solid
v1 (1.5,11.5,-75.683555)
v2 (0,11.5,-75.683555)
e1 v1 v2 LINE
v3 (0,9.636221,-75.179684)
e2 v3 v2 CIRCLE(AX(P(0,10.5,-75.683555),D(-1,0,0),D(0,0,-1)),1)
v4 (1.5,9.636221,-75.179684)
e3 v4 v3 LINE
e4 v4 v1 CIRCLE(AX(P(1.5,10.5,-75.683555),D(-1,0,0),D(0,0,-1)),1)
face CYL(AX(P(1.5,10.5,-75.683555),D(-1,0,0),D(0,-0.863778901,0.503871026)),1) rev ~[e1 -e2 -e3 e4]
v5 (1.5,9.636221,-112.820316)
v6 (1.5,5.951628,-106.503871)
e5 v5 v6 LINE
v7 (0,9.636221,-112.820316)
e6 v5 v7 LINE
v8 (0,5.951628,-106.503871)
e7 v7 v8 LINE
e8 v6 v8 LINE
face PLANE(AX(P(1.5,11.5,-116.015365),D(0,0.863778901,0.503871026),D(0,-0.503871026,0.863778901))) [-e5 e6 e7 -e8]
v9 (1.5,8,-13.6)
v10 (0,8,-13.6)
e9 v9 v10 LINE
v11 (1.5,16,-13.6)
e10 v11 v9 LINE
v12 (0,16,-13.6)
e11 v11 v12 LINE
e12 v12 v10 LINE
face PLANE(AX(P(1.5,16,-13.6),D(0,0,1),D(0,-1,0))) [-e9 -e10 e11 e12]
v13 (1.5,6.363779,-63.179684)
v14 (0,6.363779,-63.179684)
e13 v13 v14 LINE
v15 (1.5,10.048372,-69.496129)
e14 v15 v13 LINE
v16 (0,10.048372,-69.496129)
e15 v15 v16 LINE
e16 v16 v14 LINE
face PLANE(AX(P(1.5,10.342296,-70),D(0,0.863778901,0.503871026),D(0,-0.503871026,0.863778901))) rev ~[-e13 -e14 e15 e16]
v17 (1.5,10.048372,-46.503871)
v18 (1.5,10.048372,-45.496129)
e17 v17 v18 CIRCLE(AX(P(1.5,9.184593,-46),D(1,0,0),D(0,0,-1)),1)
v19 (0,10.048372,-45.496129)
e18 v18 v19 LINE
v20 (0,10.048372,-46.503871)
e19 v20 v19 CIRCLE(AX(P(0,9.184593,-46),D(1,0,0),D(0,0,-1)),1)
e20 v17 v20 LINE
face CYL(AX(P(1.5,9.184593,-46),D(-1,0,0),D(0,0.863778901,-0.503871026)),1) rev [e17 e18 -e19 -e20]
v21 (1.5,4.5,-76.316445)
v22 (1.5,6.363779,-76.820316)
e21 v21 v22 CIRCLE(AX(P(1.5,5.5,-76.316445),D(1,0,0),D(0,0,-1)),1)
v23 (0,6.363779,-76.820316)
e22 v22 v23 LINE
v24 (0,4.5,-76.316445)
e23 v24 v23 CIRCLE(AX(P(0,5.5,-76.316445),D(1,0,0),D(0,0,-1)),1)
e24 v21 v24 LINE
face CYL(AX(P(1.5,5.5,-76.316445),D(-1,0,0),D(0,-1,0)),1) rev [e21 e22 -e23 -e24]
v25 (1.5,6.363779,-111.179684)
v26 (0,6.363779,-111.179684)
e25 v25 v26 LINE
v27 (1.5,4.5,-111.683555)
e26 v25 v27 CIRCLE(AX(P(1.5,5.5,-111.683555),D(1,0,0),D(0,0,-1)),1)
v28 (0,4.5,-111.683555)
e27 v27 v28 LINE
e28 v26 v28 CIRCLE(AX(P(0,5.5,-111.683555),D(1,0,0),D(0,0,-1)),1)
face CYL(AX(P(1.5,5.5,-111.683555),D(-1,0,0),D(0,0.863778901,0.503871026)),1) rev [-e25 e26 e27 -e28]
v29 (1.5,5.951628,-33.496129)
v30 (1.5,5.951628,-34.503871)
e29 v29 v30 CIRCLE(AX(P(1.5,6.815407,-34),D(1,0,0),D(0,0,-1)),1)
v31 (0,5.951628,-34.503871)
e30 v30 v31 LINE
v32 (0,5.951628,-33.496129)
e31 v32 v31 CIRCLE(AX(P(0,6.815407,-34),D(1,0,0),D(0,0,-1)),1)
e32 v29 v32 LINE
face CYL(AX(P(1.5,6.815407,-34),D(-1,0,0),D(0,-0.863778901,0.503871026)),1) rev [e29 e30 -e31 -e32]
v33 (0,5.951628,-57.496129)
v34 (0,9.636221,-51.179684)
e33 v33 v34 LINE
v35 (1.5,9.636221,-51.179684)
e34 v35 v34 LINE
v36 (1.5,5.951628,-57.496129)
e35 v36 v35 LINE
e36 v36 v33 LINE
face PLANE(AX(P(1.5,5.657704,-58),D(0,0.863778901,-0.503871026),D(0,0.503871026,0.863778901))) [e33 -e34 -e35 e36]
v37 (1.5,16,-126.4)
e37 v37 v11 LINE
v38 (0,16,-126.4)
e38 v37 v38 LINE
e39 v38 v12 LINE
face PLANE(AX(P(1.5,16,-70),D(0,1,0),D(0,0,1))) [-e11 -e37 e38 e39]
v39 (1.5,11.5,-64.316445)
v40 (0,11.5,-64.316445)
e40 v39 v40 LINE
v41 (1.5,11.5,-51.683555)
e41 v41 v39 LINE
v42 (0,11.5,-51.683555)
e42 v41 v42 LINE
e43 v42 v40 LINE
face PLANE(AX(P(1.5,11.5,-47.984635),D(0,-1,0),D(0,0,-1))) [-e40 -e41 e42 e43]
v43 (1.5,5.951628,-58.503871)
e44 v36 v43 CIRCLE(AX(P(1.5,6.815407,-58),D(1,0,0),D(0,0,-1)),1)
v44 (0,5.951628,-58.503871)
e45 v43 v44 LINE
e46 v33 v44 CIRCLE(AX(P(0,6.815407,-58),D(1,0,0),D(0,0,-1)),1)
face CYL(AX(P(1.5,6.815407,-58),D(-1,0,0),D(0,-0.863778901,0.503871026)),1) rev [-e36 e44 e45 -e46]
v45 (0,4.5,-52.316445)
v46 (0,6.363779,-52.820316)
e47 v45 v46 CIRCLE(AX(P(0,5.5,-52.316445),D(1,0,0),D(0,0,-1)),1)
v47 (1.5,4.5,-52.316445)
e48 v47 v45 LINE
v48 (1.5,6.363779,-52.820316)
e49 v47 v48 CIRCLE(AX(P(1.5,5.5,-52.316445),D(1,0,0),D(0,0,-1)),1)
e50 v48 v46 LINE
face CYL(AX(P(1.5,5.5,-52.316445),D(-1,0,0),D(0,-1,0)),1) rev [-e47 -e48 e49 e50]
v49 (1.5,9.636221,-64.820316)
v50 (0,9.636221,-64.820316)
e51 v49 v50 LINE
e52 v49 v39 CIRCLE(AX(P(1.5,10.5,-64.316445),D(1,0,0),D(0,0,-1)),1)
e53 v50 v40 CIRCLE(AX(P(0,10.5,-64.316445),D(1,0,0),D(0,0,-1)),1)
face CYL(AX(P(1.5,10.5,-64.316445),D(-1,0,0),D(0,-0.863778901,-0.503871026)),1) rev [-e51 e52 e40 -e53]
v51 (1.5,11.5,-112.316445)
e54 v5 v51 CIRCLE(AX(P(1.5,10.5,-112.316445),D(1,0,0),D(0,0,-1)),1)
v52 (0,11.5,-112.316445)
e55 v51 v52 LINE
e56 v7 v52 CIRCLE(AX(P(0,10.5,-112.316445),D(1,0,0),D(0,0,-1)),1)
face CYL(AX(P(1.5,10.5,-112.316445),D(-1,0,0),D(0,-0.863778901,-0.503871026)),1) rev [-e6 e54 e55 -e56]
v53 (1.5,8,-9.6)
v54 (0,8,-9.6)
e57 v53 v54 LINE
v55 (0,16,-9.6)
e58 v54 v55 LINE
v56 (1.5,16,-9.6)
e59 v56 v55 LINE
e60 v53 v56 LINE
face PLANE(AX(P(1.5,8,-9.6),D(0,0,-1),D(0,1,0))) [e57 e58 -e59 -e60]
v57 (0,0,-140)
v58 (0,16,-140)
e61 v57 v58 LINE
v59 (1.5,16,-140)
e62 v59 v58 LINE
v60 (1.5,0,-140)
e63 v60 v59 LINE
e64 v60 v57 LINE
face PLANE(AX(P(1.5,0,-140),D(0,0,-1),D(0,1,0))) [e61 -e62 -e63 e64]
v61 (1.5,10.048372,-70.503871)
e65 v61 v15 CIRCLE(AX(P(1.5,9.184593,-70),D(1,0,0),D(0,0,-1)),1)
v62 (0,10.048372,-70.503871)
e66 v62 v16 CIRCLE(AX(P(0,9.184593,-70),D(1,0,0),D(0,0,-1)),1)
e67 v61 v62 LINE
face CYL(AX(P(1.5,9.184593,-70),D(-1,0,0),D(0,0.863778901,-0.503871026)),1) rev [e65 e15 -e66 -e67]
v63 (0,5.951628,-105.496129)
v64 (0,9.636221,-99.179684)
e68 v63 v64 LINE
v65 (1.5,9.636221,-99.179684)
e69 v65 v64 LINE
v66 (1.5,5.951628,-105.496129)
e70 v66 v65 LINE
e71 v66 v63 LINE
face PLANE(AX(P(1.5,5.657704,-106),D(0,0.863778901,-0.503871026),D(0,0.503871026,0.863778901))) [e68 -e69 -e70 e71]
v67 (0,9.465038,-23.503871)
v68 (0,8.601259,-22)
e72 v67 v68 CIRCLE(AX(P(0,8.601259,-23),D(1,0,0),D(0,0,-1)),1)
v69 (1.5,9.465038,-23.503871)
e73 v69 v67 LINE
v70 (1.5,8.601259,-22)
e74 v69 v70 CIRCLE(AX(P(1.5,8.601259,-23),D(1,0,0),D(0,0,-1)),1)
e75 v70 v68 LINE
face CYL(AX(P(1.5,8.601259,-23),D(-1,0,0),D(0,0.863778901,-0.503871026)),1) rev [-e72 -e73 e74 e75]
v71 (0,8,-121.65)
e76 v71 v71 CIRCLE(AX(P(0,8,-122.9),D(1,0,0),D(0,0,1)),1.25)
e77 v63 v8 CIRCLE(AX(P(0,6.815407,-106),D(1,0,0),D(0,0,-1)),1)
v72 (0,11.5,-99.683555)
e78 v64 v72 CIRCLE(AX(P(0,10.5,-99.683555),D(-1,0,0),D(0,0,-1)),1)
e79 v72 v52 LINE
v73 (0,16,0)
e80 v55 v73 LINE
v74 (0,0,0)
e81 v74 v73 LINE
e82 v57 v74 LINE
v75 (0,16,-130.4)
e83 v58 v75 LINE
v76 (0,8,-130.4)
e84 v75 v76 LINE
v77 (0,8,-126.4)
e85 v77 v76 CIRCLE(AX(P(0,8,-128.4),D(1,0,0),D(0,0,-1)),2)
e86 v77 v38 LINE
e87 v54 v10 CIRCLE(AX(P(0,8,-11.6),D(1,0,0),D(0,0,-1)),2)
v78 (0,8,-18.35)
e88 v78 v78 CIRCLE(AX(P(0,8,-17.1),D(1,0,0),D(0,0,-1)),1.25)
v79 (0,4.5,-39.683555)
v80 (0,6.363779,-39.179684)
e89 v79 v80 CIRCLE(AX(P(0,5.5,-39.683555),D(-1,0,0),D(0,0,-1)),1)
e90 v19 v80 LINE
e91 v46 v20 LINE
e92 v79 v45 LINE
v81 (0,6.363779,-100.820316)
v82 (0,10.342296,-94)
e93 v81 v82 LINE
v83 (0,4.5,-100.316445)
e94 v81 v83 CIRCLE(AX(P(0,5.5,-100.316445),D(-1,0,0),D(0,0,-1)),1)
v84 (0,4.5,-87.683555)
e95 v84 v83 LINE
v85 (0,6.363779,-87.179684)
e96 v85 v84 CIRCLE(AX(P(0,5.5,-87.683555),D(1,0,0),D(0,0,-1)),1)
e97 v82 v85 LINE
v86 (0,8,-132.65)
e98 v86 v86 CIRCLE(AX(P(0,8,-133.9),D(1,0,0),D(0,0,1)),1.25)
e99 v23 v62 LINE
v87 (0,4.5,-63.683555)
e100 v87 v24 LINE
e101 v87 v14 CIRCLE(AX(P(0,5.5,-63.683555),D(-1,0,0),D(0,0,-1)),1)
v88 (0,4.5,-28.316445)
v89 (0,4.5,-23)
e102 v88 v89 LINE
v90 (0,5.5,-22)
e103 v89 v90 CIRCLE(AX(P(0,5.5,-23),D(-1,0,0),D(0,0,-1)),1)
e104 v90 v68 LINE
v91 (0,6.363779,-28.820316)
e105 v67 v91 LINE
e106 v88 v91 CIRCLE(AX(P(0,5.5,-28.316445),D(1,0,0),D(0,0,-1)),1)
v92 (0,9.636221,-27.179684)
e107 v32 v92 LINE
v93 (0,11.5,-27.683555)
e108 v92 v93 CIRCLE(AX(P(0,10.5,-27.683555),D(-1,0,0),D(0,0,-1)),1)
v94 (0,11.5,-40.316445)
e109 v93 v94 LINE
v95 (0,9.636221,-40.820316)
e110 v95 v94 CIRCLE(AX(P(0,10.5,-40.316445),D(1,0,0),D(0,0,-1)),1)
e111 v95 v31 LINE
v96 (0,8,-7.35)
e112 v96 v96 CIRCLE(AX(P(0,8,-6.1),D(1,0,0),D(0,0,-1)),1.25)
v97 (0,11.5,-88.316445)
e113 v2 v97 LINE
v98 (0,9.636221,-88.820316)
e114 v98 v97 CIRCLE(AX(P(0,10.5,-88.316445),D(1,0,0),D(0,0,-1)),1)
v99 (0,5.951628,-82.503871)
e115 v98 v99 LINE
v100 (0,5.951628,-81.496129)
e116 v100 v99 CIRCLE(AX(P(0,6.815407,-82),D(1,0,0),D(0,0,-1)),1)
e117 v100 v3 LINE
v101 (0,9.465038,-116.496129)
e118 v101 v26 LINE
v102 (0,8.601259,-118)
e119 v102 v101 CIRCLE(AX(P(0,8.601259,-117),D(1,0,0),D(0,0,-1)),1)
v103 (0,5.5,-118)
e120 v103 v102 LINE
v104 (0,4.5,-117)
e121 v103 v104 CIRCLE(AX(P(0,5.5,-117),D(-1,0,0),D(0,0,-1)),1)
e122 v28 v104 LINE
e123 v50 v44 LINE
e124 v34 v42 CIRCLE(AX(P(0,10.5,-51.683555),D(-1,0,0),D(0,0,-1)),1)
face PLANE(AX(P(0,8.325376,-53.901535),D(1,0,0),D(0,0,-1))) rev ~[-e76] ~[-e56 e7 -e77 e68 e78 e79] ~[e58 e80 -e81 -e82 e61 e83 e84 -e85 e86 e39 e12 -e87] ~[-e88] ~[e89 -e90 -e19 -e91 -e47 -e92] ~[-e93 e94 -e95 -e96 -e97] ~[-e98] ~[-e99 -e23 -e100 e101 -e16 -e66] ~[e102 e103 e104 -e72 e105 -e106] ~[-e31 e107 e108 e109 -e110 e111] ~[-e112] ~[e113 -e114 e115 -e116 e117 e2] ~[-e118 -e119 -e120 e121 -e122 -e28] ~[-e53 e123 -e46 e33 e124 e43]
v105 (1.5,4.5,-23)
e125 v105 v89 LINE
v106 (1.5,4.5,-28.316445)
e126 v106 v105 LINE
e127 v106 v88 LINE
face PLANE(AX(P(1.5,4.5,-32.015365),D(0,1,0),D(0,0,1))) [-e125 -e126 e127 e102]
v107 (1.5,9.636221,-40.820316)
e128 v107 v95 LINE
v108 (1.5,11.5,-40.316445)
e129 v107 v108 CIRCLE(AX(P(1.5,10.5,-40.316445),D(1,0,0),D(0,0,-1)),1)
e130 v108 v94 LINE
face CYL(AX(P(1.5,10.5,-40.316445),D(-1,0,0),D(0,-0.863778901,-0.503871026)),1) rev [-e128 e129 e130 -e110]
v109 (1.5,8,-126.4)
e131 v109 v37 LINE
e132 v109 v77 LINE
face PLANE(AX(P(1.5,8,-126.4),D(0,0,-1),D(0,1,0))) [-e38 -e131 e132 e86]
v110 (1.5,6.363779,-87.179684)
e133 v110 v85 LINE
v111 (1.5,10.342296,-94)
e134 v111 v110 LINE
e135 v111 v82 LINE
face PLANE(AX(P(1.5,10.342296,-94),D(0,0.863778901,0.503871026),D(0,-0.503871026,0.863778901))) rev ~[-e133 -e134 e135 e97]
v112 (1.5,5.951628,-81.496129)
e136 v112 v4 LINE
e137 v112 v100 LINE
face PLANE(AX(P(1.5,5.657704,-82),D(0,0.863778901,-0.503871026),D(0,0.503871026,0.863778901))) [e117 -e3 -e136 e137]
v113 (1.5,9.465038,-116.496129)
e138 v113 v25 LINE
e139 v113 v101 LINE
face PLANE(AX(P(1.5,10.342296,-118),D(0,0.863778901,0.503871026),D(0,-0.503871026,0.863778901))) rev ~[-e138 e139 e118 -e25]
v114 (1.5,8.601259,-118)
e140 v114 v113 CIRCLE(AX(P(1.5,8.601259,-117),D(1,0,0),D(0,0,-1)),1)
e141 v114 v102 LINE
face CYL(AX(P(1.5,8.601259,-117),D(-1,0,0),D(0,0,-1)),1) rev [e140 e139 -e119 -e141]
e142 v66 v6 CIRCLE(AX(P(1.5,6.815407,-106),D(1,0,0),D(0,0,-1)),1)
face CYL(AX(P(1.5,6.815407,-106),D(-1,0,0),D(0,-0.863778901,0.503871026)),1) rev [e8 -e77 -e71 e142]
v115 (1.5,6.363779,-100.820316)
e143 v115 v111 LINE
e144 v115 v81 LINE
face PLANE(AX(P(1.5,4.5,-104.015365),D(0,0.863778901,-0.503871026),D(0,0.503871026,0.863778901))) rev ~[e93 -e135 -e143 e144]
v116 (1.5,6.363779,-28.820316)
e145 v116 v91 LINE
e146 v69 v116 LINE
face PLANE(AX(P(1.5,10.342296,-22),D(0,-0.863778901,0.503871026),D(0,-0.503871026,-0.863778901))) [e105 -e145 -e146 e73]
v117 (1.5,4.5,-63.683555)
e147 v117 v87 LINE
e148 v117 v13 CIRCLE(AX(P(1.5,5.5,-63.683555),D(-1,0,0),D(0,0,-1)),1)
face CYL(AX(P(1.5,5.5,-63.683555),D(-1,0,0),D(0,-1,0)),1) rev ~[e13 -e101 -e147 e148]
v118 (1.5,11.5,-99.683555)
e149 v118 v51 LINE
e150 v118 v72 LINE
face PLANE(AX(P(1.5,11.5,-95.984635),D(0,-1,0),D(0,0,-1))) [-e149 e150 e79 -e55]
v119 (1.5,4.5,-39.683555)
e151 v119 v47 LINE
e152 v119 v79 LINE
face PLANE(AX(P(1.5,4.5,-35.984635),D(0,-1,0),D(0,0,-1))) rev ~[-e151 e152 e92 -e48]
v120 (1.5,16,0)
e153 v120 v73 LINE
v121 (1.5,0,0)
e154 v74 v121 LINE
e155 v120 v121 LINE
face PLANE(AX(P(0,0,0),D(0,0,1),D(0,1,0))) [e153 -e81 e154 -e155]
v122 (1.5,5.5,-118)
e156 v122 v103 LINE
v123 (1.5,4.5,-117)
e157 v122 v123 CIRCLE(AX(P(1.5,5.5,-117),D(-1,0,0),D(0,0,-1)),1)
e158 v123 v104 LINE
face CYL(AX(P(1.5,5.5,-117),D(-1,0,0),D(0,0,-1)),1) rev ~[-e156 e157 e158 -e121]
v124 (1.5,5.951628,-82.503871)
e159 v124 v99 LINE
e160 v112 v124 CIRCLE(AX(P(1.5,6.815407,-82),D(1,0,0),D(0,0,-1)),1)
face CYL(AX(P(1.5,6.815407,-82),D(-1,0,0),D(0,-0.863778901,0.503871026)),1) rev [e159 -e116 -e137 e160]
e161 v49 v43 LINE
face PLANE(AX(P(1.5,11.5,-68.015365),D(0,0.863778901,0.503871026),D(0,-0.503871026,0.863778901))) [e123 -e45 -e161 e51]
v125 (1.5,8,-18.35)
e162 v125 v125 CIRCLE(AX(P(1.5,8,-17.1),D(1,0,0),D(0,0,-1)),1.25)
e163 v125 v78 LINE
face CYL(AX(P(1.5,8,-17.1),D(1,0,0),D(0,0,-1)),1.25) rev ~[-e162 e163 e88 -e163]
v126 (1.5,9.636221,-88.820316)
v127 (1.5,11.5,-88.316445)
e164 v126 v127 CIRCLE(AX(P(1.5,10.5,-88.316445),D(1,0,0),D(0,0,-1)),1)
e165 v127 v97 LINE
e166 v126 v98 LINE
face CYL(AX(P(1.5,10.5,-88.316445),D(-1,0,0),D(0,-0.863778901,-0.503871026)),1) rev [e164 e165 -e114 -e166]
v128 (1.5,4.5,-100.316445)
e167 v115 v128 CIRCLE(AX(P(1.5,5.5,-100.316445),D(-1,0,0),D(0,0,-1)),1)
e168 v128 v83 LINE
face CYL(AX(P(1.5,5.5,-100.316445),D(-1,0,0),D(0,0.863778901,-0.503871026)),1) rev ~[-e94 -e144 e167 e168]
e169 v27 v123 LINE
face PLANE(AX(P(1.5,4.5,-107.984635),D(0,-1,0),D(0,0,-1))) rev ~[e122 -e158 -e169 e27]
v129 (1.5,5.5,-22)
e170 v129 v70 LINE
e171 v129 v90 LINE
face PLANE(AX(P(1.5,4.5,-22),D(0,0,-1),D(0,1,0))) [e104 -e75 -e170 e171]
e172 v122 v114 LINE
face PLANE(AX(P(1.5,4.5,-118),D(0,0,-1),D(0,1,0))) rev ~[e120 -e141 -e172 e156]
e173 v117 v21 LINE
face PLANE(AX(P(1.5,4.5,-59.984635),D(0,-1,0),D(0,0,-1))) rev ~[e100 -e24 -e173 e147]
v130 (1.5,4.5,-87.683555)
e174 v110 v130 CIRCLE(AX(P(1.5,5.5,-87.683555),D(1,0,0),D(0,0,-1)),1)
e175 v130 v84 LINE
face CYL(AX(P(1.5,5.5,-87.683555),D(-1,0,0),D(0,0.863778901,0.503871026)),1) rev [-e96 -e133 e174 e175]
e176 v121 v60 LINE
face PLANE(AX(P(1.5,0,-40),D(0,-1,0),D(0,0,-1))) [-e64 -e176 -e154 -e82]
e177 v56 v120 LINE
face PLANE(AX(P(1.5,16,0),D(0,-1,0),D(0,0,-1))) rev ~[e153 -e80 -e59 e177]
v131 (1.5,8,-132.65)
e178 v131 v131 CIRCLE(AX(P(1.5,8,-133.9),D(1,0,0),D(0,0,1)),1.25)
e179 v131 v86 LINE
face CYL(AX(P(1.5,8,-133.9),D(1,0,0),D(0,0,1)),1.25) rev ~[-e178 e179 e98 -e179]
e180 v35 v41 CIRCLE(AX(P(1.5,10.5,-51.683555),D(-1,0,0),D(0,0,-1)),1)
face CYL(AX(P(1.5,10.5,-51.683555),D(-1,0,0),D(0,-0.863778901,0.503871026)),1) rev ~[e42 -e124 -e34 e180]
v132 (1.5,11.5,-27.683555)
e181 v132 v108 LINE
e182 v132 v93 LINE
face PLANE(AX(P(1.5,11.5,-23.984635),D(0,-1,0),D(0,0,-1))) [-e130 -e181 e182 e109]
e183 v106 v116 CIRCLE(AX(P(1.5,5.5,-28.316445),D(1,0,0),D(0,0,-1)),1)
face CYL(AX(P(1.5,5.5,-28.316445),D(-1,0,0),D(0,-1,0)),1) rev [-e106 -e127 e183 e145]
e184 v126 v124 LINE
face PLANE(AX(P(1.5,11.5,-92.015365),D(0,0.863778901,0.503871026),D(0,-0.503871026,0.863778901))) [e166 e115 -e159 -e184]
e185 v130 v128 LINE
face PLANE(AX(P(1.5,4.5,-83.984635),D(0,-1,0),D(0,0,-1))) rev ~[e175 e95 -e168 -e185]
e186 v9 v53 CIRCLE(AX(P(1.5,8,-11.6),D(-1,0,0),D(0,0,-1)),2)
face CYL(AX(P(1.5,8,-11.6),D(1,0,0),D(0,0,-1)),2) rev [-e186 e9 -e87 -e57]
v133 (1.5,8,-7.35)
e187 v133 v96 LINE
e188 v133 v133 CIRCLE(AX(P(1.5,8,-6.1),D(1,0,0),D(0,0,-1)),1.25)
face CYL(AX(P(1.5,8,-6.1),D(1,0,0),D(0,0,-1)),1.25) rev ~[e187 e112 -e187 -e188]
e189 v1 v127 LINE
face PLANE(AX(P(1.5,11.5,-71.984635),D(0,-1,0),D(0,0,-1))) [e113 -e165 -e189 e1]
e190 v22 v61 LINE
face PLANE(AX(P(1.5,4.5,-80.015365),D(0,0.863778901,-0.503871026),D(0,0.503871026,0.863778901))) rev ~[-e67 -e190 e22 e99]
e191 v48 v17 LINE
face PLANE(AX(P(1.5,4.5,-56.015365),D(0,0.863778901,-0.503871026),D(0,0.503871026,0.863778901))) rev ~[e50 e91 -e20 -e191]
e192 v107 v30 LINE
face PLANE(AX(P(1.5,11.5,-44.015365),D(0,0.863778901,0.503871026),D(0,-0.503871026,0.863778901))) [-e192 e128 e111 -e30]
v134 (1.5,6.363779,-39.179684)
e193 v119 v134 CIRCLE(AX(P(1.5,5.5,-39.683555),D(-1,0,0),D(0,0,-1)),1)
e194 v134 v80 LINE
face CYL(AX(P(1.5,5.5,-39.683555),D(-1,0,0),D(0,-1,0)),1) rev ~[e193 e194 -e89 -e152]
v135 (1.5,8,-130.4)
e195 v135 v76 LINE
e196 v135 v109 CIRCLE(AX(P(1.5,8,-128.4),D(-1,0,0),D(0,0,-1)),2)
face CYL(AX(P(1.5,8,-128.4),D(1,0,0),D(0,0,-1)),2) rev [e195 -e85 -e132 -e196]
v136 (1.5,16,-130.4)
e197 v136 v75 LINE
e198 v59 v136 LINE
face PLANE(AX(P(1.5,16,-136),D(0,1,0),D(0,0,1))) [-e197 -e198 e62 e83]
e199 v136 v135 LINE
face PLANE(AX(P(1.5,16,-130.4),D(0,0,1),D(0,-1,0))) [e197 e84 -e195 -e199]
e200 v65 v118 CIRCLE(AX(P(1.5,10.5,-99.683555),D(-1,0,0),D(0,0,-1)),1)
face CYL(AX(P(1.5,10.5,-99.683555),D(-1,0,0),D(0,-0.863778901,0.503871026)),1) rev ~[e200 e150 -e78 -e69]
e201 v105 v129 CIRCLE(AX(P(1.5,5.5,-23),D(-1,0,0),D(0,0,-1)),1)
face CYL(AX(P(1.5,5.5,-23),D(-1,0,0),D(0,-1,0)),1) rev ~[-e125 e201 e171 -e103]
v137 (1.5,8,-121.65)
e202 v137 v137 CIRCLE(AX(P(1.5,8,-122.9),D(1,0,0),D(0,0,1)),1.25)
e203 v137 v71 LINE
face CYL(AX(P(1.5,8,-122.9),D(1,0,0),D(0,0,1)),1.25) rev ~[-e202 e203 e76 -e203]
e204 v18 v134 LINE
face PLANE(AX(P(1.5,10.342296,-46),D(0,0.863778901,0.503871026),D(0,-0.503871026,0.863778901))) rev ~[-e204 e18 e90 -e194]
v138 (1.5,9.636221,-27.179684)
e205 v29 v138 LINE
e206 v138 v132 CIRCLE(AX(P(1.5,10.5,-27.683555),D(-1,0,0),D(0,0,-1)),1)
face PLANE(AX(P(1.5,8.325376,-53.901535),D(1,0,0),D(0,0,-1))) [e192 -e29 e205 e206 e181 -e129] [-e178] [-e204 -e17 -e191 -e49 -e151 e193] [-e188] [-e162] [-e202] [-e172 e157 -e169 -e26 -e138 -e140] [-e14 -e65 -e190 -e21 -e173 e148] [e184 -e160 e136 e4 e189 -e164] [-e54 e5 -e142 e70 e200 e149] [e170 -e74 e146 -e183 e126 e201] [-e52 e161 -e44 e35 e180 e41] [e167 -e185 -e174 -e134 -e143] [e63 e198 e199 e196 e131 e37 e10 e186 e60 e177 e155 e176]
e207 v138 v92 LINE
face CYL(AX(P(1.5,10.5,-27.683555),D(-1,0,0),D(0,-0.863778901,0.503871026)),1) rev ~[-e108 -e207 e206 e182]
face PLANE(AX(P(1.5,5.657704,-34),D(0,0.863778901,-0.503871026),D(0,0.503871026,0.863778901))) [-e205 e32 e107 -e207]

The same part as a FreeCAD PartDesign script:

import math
import FreeCAD as App
import Part
import Sketcher

V = App.Vector


def edges_at(feature, points):
    """Names of the edges that pass closest to the given points."""
    edges = feature.Shape.Edges
    near = lambda p: min(range(len(edges)), key=lambda i: edges[i].distToShape(Part.Vertex(*p))[0])
    return sorted({f"Edge{near(p) + 1}" for p in points})


def add_polygon(sketch, points):
    """Adds a closed chain of lines whose ends are joined by coincident constraints."""
    first, n = sketch.GeometryCount, len(points)
    for a, b in zip(points, points[1:] + points[:1]):
        sketch.addGeometry(Part.LineSegment(App.Vector(*a, 0), App.Vector(*b, 0)), False)
    for i in range(n):
        sketch.addConstraint(Sketcher.Constraint("Coincident", first + i, 2, first + (i + 1) % n, 1))

doc = App.newDocument("Part")
body = doc.addObject("PartDesign::Body", "Body")

# Sketch on YZ plane
sketch1 = doc.addObject("Sketcher::SketchObject", "Sketch")
body.addObject(sketch1)
sketch1.AttachmentSupport = (doc.YZ_Plane, [""])
sketch1.MapMode = "FlatFace"
add_polygon(sketch1, [(75.5, 0), (0, 0), (0, -4), (25, -4), (25, -29.75584), (0, -35.881668), (0, -40), (75.5, -21.5)])  # lines 0-7
add_polygon(sketch1, [(29, -8.260476), (62.535547, -20.558388), (29, -28.775708)])  # lines 8-10
add_polygon(sketch1, [(69.5, -4), (69.5, -18.851867), (29, -4)])  # lines 11-13
sketch1.addGeometry(Part.Circle(V(72.5, -18.5, 0), V(0, 0, 1), 1.05), False)  # 14
sketch1.addGeometry(Part.Circle(V(72.5, -5.5, 0), V(0, 0, 1), 1.05), False)  # 15
sketch1.addConstraint(Sketcher.Constraint("Horizontal", 0))
sketch1.addConstraint(Sketcher.Constraint("Vertical", 1))
sketch1.addConstraint(Sketcher.Constraint("Horizontal", 2))
sketch1.addConstraint(Sketcher.Constraint("Vertical", 3))
sketch1.addConstraint(Sketcher.Constraint("Vertical", 5))
sketch1.addConstraint(Sketcher.Constraint("Vertical", 7))
sketch1.addConstraint(Sketcher.Constraint("Vertical", 10))
sketch1.addConstraint(Sketcher.Constraint("Vertical", 11))
sketch1.addConstraint(Sketcher.Constraint("Horizontal", 13))
sketch1.addConstraint(Sketcher.Constraint("Coincident", 0, 2, -1, 1))
sketch1.addConstraint(Sketcher.Constraint("Equal", 14, 15))
sketch1.addConstraint(Sketcher.Constraint("PointOnObject", 4, 2, -2))
sketch1.addConstraint(Sketcher.Constraint("Parallel", 4, 6))
sketch1.addConstraint(Sketcher.Constraint("Parallel", 6, 9))
sketch1.addConstraint(Sketcher.Constraint("Parallel", 8, 12))
sketch1.addConstraint(Sketcher.Constraint("Horizontal", 2, 2, 12, 2))
sketch1.addConstraint(Sketcher.Constraint("Vertical", 14, 3, 15, 3))
sketch1.addConstraint(Sketcher.Constraint("Vertical", 10, 2, 12, 2))
sketch1.addConstraint(Sketcher.Constraint("Diameter", 14, 2.1))
sketch1.addConstraint(Sketcher.Constraint("DistanceX", 2, 1, 2, 2, 25.0))
sketch1.addConstraint(Sketcher.Constraint("DistanceY", 1, 2, 1, 1, 4.0))
sketch1.addConstraint(Sketcher.Constraint("DistanceX", 0, 2, 0, 1, 75.5))
sketch1.addConstraint(Sketcher.Constraint("DistanceX", 13, 1, 13, 2, 40.5))
sketch1.addConstraint(Sketcher.Constraint("DistanceY", 7, 1, 7, 2, 21.5))
sketch1.addConstraint(Sketcher.Constraint("DistanceY", 5, 2, -1, 1, 40.0))
sketch1.addConstraint(Sketcher.Constraint("DistanceX", -1, 1, 9, 2, 29.0))
sketch1.addConstraint(Sketcher.Constraint("DistanceY", 14, 3, 15, 3, 13.0))
sketch1.addConstraint(Sketcher.Constraint("DistanceX", 14, 3, 6, 2, 3.0))
sketch1.addConstraint(Sketcher.Constraint("DistanceY", 6, 2, 14, 3, 3.0))
sketch1.addConstraint(Sketcher.Constraint("DistanceY", 3, 2, 3, 1, 25.75584))
sketch1.addConstraint(Sketcher.Constraint("Distance", 9, 34.52763))
sketch1.addConstraint(Sketcher.Constraint("DistanceY", 10, 1, 10, 2, 20.515232))
sketch1.addConstraint(Sketcher.Constraint("DistanceY", 8, 2, -1, 1, 20.558388))
pad1 = doc.addObject("PartDesign::Pad", "Pad")
body.addObject(pad1)
pad1.Profile = sketch1
pad1.Length = 1.5
doc.recompute()

fillet = doc.addObject("PartDesign::Fillet", "Fillet")
body.addObject(fillet)
fillet.Base = (pad1, edges_at(pad1, [
    (0.75, 75.5, -21.5),
    (0.75, 25, -29.756),
    (0.75, 25, -4),
    (0.75, 69.5, -4),
    (0.75, 29, -4),
    (0.75, 69.5, -18.852),
    (0.75, 29, -8.26),
    (0.75, 29, -28.776),
    (0.75, 62.536, -20.558),
]))
fillet.Radius = 1.5

# Sketch on YZ plane
sketch2 = doc.addObject("Sketcher::SketchObject", "Sketch001")
body.addObject(sketch2)
sketch2.AttachmentSupport = (doc.YZ_Plane, [""])
sketch2.MapMode = "FlatFace"
sketch2.AttachmentOffset = App.Placement(V(0, 0, 1.5), App.Rotation())
sketch2.addGeometry(Part.LineSegment(V(16, 0, 0), V(0, 0, 0)), False)
sketch2.addGeometry(Part.LineSegment(V(0, 0, 0), V(0, -140, 0)), False)
sketch2.addGeometry(Part.LineSegment(V(0, -140, 0), V(75.5, -140, 0)), False)
sketch2.addGeometry(Part.LineSegment(V(75.5, -140, 0), V(75.5, -119.676825, 0)), False)
sketch2.addGeometry(Part.ArcOfCircle(Part.Circle(V(74, -119.676825, 0), V(0, 0, 1), 1.5), math.radians(0), math.radians(76.231909)), False)
sketch2.addGeometry(Part.LineSegment(V(74.356989, -118.219924, 0), V(16, -103.92053, 0)), False)
sketch2.addGeometry(Part.LineSegment(V(16, -103.92053, 0), V(16, 0, 0)), False)
sketch2.addGeometry(Part.Circle(V(72.5, -134.5, 0), V(0, 0, 1), 1.05), False)
sketch2.addGeometry(Part.LineSegment(V(57.91578, -121.135739, 0), V(31.016439, -131.00007, 0)), False)
sketch2.addGeometry(Part.ArcOfCircle(Part.Circle(V(30.5, -129.591777, 0), V(0, 0, 1), 1.5), math.radians(180), math.radians(290.138631)), False)
sketch2.addGeometry(Part.LineSegment(V(29, -129.591777, 0), V(29, -113.136217, 0)), False)
sketch2.addGeometry(Part.ArcOfCircle(Part.Circle(V(30.5, -113.136217, 0), V(0, 0, 1), 1.5), math.radians(76.23191), math.radians(180)), False)
sketch2.addGeometry(Part.LineSegment(V(30.856989, -111.679316, 0), V(57.756329, -118.270545, 0)), False)
sketch2.addGeometry(Part.ArcOfCircle(Part.Circle(V(57.39934, -119.727446, 0), V(0, 0, 1), 1.5), math.radians(-69.861369), math.radians(76.23191)), False)
sketch2.addGeometry(Part.LineSegment(V(16, -136, 0), V(16, -108.038862, 0)), False)
sketch2.addGeometry(Part.LineSegment(V(16, -108.038862, 0), V(23.856989, -109.964084, 0)), False)
sketch2.addGeometry(Part.ArcOfCircle(Part.Circle(V(23.5, -111.420985, 0), V(0, 0, 1), 1.5), math.radians(0), math.radians(76.23191)), False)
sketch2.addGeometry(Part.LineSegment(V(25, -111.420985, 0), V(25, -134.5, 0)), False)
sketch2.addGeometry(Part.ArcOfCircle(Part.Circle(V(23.5, -134.5, 0), V(0, 0, 1), 1.5), math.radians(-90), math.radians(0)), False)
sketch2.addGeometry(Part.LineSegment(V(23.5, -136, 0), V(16, -136, 0)), False)
sketch2.addGeometry(Part.Circle(V(72.5, -121.5, 0), V(0, 0, 1), 1.05), False)
sketch2.addGeometry(Part.LineSegment(V(36.930713, -133.091707, 0), V(67.483561, -121.887587, 0)), False)
sketch2.addGeometry(Part.ArcOfCircle(Part.Circle(V(68, -123.295881, 0), V(0, 0, 1), 1.5), math.radians(0), math.radians(110.138631)), False)
sketch2.addGeometry(Part.LineSegment(V(69.5, -123.295881, 0), V(69.5, -134.5, 0)), False)
sketch2.addGeometry(Part.ArcOfCircle(Part.Circle(V(68, -134.5, 0), V(0, 0, 1), 1.5), math.radians(-90), math.radians(0)), False)
sketch2.addGeometry(Part.LineSegment(V(68, -136, 0), V(37.447152, -136, 0)), False)
sketch2.addGeometry(Part.ArcOfCircle(Part.Circle(V(37.447152, -134.5, 0), V(0, 0, 1), 1.5), math.radians(110.138631), math.radians(270)), False)
sketch2.addConstraint(Sketcher.Constraint("Coincident", 0, 2, 1, 1))
sketch2.addConstraint(Sketcher.Constraint("Coincident", 1, 2, 2, 1))
sketch2.addConstraint(Sketcher.Constraint("Coincident", 2, 2, 3, 1))
sketch2.addConstraint(Sketcher.Constraint("Coincident", 3, 2, 4, 1))
sketch2.addConstraint(Sketcher.Constraint("Coincident", 4, 2, 5, 1))
sketch2.addConstraint(Sketcher.Constraint("Coincident", 5, 2, 6, 1))
sketch2.addConstraint(Sketcher.Constraint("Coincident", 6, 2, 0, 1))
sketch2.addConstraint(Sketcher.Constraint("Coincident", 8, 2, 9, 2))
sketch2.addConstraint(Sketcher.Constraint("Coincident", 9, 1, 10, 1))
sketch2.addConstraint(Sketcher.Constraint("Coincident", 10, 2, 11, 2))
sketch2.addConstraint(Sketcher.Constraint("Coincident", 11, 1, 12, 1))
sketch2.addConstraint(Sketcher.Constraint("Coincident", 12, 2, 13, 2))
sketch2.addConstraint(Sketcher.Constraint("Coincident", 13, 1, 8, 1))
sketch2.addConstraint(Sketcher.Constraint("Coincident", 14, 2, 15, 1))
sketch2.addConstraint(Sketcher.Constraint("Coincident", 15, 2, 16, 2))
sketch2.addConstraint(Sketcher.Constraint("Coincident", 16, 1, 17, 1))
sketch2.addConstraint(Sketcher.Constraint("Coincident", 17, 2, 18, 2))
sketch2.addConstraint(Sketcher.Constraint("Coincident", 18, 1, 19, 1))
sketch2.addConstraint(Sketcher.Constraint("Coincident", 19, 2, 14, 1))
sketch2.addConstraint(Sketcher.Constraint("Coincident", 21, 2, 22, 2))
sketch2.addConstraint(Sketcher.Constraint("Coincident", 22, 1, 23, 1))
sketch2.addConstraint(Sketcher.Constraint("Coincident", 23, 2, 24, 2))
sketch2.addConstraint(Sketcher.Constraint("Coincident", 24, 1, 25, 1))
sketch2.addConstraint(Sketcher.Constraint("Coincident", 25, 2, 26, 2))
sketch2.addConstraint(Sketcher.Constraint("Coincident", 26, 1, 21, 1))
sketch2.addConstraint(Sketcher.Constraint("Horizontal", 0))
sketch2.addConstraint(Sketcher.Constraint("Vertical", 1))
sketch2.addConstraint(Sketcher.Constraint("Horizontal", 2))
sketch2.addConstraint(Sketcher.Constraint("Vertical", 3))
sketch2.addConstraint(Sketcher.Constraint("Vertical", 6))
sketch2.addConstraint(Sketcher.Constraint("Vertical", 10))
sketch2.addConstraint(Sketcher.Constraint("Vertical", 14))
sketch2.addConstraint(Sketcher.Constraint("Vertical", 17))
sketch2.addConstraint(Sketcher.Constraint("Horizontal", 19))
sketch2.addConstraint(Sketcher.Constraint("Vertical", 23))
sketch2.addConstraint(Sketcher.Constraint("Horizontal", 25))
sketch2.addConstraint(Sketcher.Constraint("Coincident", 0, 2, -1, 1))
sketch2.addConstraint(Sketcher.Constraint("Diameter", 7, 2.1))
sketch2.addConstraint(Sketcher.Constraint("Diameter", 20, 2.1))
sketch2.addConstraint(Sketcher.Constraint("Radius", 4, 1.5))
sketch2.addConstraint(Sketcher.Constraint("Radius", 9, 1.5))
sketch2.addConstraint(Sketcher.Constraint("Radius", 11, 1.5))
sketch2.addConstraint(Sketcher.Constraint("Radius", 13, 1.5))
sketch2.addConstraint(Sketcher.Constraint("Radius", 16, 1.5))
sketch2.addConstraint(Sketcher.Constraint("Radius", 18, 1.5))
sketch2.addConstraint(Sketcher.Constraint("Radius", 22, 1.5))
sketch2.addConstraint(Sketcher.Constraint("Radius", 24, 1.5))
sketch2.addConstraint(Sketcher.Constraint("Radius", 26, 1.5))
sketch2.addConstraint(Sketcher.Constraint("DistanceX", 0, 2, 0, 1, 16.0))
sketch2.addConstraint(Sketcher.Constraint("DistanceY", 1, 2, 1, 1, 140.0))
sketch2.addConstraint(Sketcher.Constraint("DistanceX", 2, 1, 2, 2, 75.5))
sketch2.addConstraint(Sketcher.Constraint("DistanceX", 19, 2, 19, 1, 7.5))
sketch2.addConstraint(Sketcher.Constraint("DistanceX", -1, 1, 22, 3, 68.0))
sketch2.addConstraint(Sketcher.Constraint("DistanceX", -1, 1, 9, 1, 29.0))
sketch2.addConstraint(Sketcher.Constraint("DistanceX", -1, 1, 14, 2, 16.0))
sketch2.addConstraint(Sketcher.Constraint("DistanceX", -1, 1, 16, 1, 25.0))
sketch2.addConstraint(Sketcher.Constraint("DistanceY", 18, 1, -1, 1, 136.0))
sketch2.addConstraint(Sketcher.Constraint("DistanceX", -1, 1, 24, 1, 68.0))
sketch2.addConstraint(Sketcher.Constraint("DistanceY", 24, 1, -1, 1, 136.0))
sketch2.addConstraint(Sketcher.Constraint("DistanceX", 9, 3, 7, 3, 42.0))
sketch2.addConstraint(Sketcher.Constraint("DistanceY", 7, 3, 20, 3, 13.0))
sketch2.addConstraint(Sketcher.Constraint("DistanceX", 9, 3, 20, 3, 42.0))
sketch2.addConstraint(Sketcher.Constraint("DistanceY", 24, 3, 20, 3, 13.0))
sketch2.addConstraint(Sketcher.Constraint("DistanceX", 15, 2, 11, 1, 7.0))
sketch2.addConstraint(Sketcher.Constraint("DistanceY", 17, 2, -1, 1, 134.5))
sketch2.addConstraint(Sketcher.Constraint("DistanceY", 23, 2, -1, 1, 134.5))
sketch2.addConstraint(Sketcher.Constraint("DistanceX", 25, 2, 25, 1, 30.552848))
sketch2.addConstraint(Sketcher.Constraint("DistanceY", 6, 1, 6, 2, 103.92053))
sketch2.addConstraint(Sketcher.Constraint("DistanceY", 10, 1, 10, 2, 16.45556))
sketch2.addConstraint(Sketcher.Constraint("DistanceY", 14, 1, 14, 2, 27.961138))
sketch2.addConstraint(Sketcher.Constraint("DistanceY", 23, 2, 23, 1, 11.204119))
sketch2.addConstraint(Sketcher.Constraint("DistanceY", 4, 3, 4, 2, 1.4569))
sketch2.addConstraint(Sketcher.Constraint("DistanceY", 3, 2, 4, 2, 1.4569))
sketch2.addConstraint(Sketcher.Constraint("DistanceY", 11, 3, 11, 1, 1.4569))
sketch2.addConstraint(Sketcher.Constraint("DistanceY", 10, 2, 11, 1, 1.4569))
sketch2.addConstraint(Sketcher.Constraint("DistanceY", 13, 3, 12, 2, 1.4569))
sketch2.addConstraint(Sketcher.Constraint("DistanceY", 16, 1, 15, 2, 1.4569))
sketch2.addConstraint(Sketcher.Constraint("DistanceY", 3, 1, 3, 2, 20.323175))
sketch2.addConstraint(Sketcher.Constraint("DistanceY", 17, 2, 17, 1, 23.079015))
sketch2.addConstraint(Sketcher.Constraint("DistanceX", -1, 1, 13, 3, 57.39934))
sketch2.addConstraint(Sketcher.Constraint("DistanceY", 22, 3, -1, 1, 123.295881))
sketch2.addConstraint(Sketcher.Constraint("DistanceX", -1, 1, 26, 3, 37.447152))
sketch2.addConstraint(Sketcher.Constraint("DistanceX", -1, 1, 8, 2, 31.016439))
sketch2.addConstraint(Sketcher.Constraint("DistanceY", 8, 2, -1, 1, 131.00007))
sketch2.addConstraint(Sketcher.Constraint("DistanceX", -1, 1, 13, 1, 57.91578))
sketch2.addConstraint(Sketcher.Constraint("DistanceY", 13, 1, -1, 1, 121.135739))
sketch2.addConstraint(Sketcher.Constraint("DistanceX", -1, 1, 21, 2, 67.483561))
sketch2.addConstraint(Sketcher.Constraint("DistanceY", 9, 3, 11, 3, 16.45556))
sketch2.addConstraint(Sketcher.Constraint("DistanceX", 26, 1, 26, 3, 0.516439))
pad2 = doc.addObject("PartDesign::Pad", "Pad001")
body.addObject(pad2)
pad2.Profile = sketch2
pad2.Length = 1.5
pad2.Reversed = True

# Sketch on YZ plane
sketch3 = doc.addObject("Sketcher::SketchObject", "Sketch002")
body.addObject(sketch3)
sketch3.AttachmentSupport = (doc.YZ_Plane, [""])
sketch3.MapMode = "FlatFace"
sketch3.AttachmentOffset = App.Placement(V(0, 0, 1.5), App.Rotation())
sketch3.addGeometry(Part.Circle(V(8, -6.1, 0), V(0, 0, 1), 1.25), False)
sketch3.addGeometry(Part.Circle(V(8, -17.1, 0), V(0, 0, 1), 1.25), False)
sketch3.addGeometry(Part.Circle(V(8, -122.9, 0), V(0, 0, 1), 1.25), False)
sketch3.addGeometry(Part.Circle(V(8, -133.9, 0), V(0, 0, 1), 1.25), False)
sketch3.addGeometry(Part.LineSegment(V(16, -130.4, 0), V(16, -126.4, 0)), False)
sketch3.addGeometry(Part.LineSegment(V(16, -126.4, 0), V(8, -126.4, 0)), False)
sketch3.addGeometry(Part.ArcOfCircle(Part.Circle(V(8, -128.4, 0), V(0, 0, 1), 2), math.radians(90), math.radians(270)), False)
sketch3.addGeometry(Part.LineSegment(V(8, -130.4, 0), V(16, -130.4, 0)), False)
sketch3.addGeometry(Part.LineSegment(V(16, -13.6, 0), V(16, -9.6, 0)), False)
sketch3.addGeometry(Part.LineSegment(V(16, -9.6, 0), V(8, -9.6, 0)), False)
sketch3.addGeometry(Part.ArcOfCircle(Part.Circle(V(8, -11.6, 0), V(0, 0, 1), 2), math.radians(90), math.radians(270)), False)
sketch3.addGeometry(Part.LineSegment(V(8, -13.6, 0), V(16, -13.6, 0)), False)
sketch3.addConstraint(Sketcher.Constraint("Coincident", 4, 2, 5, 1))
sketch3.addConstraint(Sketcher.Constraint("Tangent", 5, 2, 6, 1))
sketch3.addConstraint(Sketcher.Constraint("Tangent", 6, 2, 7, 1))
sketch3.addConstraint(Sketcher.Constraint("Coincident", 7, 2, 4, 1))
sketch3.addConstraint(Sketcher.Constraint("Coincident", 8, 2, 9, 1))
sketch3.addConstraint(Sketcher.Constraint("Tangent", 9, 2, 10, 1))
sketch3.addConstraint(Sketcher.Constraint("Tangent", 10, 2, 11, 1))
sketch3.addConstraint(Sketcher.Constraint("Coincident", 11, 2, 8, 1))
sketch3.addConstraint(Sketcher.Constraint("Vertical", 4))
sketch3.addConstraint(Sketcher.Constraint("Horizontal", 5))
sketch3.addConstraint(Sketcher.Constraint("Horizontal", 7))
sketch3.addConstraint(Sketcher.Constraint("Vertical", 8))
sketch3.addConstraint(Sketcher.Constraint("Horizontal", 9))
sketch3.addConstraint(Sketcher.Constraint("Horizontal", 11))
sketch3.addConstraint(Sketcher.Constraint("Equal", 0, 1))
sketch3.addConstraint(Sketcher.Constraint("Equal", 1, 2))
sketch3.addConstraint(Sketcher.Constraint("Equal", 2, 3))
sketch3.addConstraint(Sketcher.Constraint("Equal", 6, 10))
sketch3.addConstraint(Sketcher.Constraint("Vertical", 0, 3, 1, 3))
sketch3.addConstraint(Sketcher.Constraint("Vertical", 1, 3, 2, 3))
sketch3.addConstraint(Sketcher.Constraint("Vertical", 2, 3, 3, 3))
sketch3.addConstraint(Sketcher.Constraint("Vertical", 3, 3, 6, 3))
sketch3.addConstraint(Sketcher.Constraint("Vertical", 6, 3, 10, 3))
sketch3.addConstraint(Sketcher.Constraint("Vertical", 7, 2, 8, 2))
sketch3.addConstraint(Sketcher.Constraint("Radius", 6, 2.0))
sketch3.addConstraint(Sketcher.Constraint("Diameter", 0, 2.5))
sketch3.addConstraint(Sketcher.Constraint("DistanceX", 5, 2, 5, 1, 8.0))
sketch3.addConstraint(Sketcher.Constraint("DistanceX", -1, 1, 0, 3, 8.0))
sketch3.addConstraint(Sketcher.Constraint("DistanceY", 1, 3, 0, 3, 11.0))
sketch3.addConstraint(Sketcher.Constraint("DistanceY", 3, 3, 2, 3, 11.0))
sketch3.addConstraint(Sketcher.Constraint("DistanceY", 0, 3, -1, 1, 6.1))
sketch3.addConstraint(Sketcher.Constraint("DistanceY", 2, 3, -1, 1, 122.9))
sketch3.addConstraint(Sketcher.Constraint("DistanceY", 6, 3, -1, 1, 128.4))
sketch3.addConstraint(Sketcher.Constraint("DistanceY", 10, 3, -1, 1, 11.6))
pocket1 = doc.addObject("PartDesign::Pocket", "Pocket")
body.addObject(pocket1)
pocket1.Profile = sketch3
pocket1.Type = "ThroughAll"

# Sketch on YZ plane
sketch4 = doc.addObject("Sketcher::SketchObject", "Sketch003")
body.addObject(sketch4)
sketch4.AttachmentSupport = (doc.YZ_Plane, [""])
sketch4.MapMode = "FlatFace"
sketch4.AttachmentOffset = App.Placement(V(0, 0, 1.5), App.Rotation())
add_polygon(sketch4, [(4.5, -35.984635), (4.5, -56.015365), (10.342296, -46)])  # lines 0-2
add_polygon(sketch4, [(11.5, -68.015365), (11.5, -47.984635), (5.657704, -58)])  # lines 3-5
add_polygon(sketch4, [(4.5, -59.984635), (4.5, -80.015365), (10.342296, -70)])  # lines 6-8
add_polygon(sketch4, [(10.342296, -22), (4.5, -22), (4.5, -32.015365)])  # lines 9-11
add_polygon(sketch4, [(11.5, -44.015365), (11.5, -23.984635), (5.657704, -34)])  # lines 12-14
add_polygon(sketch4, [(4.5, -118), (10.342296, -118), (4.5, -107.984635)])  # lines 15-17
add_polygon(sketch4, [(4.5, -104.015365), (10.342296, -94), (4.5, -83.984635)])  # lines 18-20
add_polygon(sketch4, [(11.5, -116.015365), (11.5, -95.984635), (5.657704, -106)])  # lines 21-23
add_polygon(sketch4, [(11.5, -92.015365), (11.5, -71.984635), (5.657704, -82)])  # lines 24-26
sketch4.addConstraint(Sketcher.Constraint("Vertical", 0))
sketch4.addConstraint(Sketcher.Constraint("Vertical", 3))
sketch4.addConstraint(Sketcher.Constraint("Vertical", 6))
sketch4.addConstraint(Sketcher.Constraint("Horizontal", 9))
sketch4.addConstraint(Sketcher.Constraint("Vertical", 10))
sketch4.addConstraint(Sketcher.Constraint("Vertical", 12))
sketch4.addConstraint(Sketcher.Constraint("Horizontal", 15))
sketch4.addConstraint(Sketcher.Constraint("Vertical", 17))
sketch4.addConstraint(Sketcher.Constraint("Vertical", 20))
sketch4.addConstraint(Sketcher.Constraint("Vertical", 21))
sketch4.addConstraint(Sketcher.Constraint("Vertical", 24))
sketch4.addConstraint(Sketcher.Constraint("Parallel", 1, 4))
sketch4.addConstraint(Sketcher.Constraint("Parallel", 2, 5))
sketch4.addConstraint(Sketcher.Constraint("Parallel", 4, 7))
sketch4.addConstraint(Sketcher.Constraint("Parallel", 5, 8))
sketch4.addConstraint(Sketcher.Constraint("Parallel", 7, 11))
sketch4.addConstraint(Sketcher.Constraint("Parallel", 11, 13))
sketch4.addConstraint(Sketcher.Constraint("Parallel", 8, 14))
sketch4.addConstraint(Sketcher.Constraint("Parallel", 14, 16))
sketch4.addConstraint(Sketcher.Constraint("Parallel", 13, 18))
sketch4.addConstraint(Sketcher.Constraint("Parallel", 16, 19))
sketch4.addConstraint(Sketcher.Constraint("Parallel", 18, 22))
sketch4.addConstraint(Sketcher.Constraint("Parallel", 19, 23))
sketch4.addConstraint(Sketcher.Constraint("Parallel", 22, 25))
sketch4.addConstraint(Sketcher.Constraint("Parallel", 23, 26))
sketch4.addConstraint(Sketcher.Constraint("Vertical", 2, 2, 6, 2))
sketch4.addConstraint(Sketcher.Constraint("Vertical", 1, 2, 7, 2))
sketch4.addConstraint(Sketcher.Constraint("Vertical", 8, 2, 9, 2))
sketch4.addConstraint(Sketcher.Constraint("Vertical", 7, 2, 11, 2))
sketch4.addConstraint(Sketcher.Constraint("Vertical", 5, 2, 12, 2))
sketch4.addConstraint(Sketcher.Constraint("Vertical", 4, 2, 13, 2))
sketch4.addConstraint(Sketcher.Constraint("Vertical", 11, 2, 15, 2))
sketch4.addConstraint(Sketcher.Constraint("Vertical", 10, 2, 16, 2))
sketch4.addConstraint(Sketcher.Constraint("Vertical", 15, 2, 18, 2))
sketch4.addConstraint(Sketcher.Constraint("Vertical", 17, 2, 19, 2))
sketch4.addConstraint(Sketcher.Constraint("Vertical", 14, 2, 21, 2))
sketch4.addConstraint(Sketcher.Constraint("Vertical", 13, 2, 22, 2))
sketch4.addConstraint(Sketcher.Constraint("Vertical", 23, 2, 24, 2))
sketch4.addConstraint(Sketcher.Constraint("Vertical", 22, 2, 25, 2))
sketch4.addConstraint(Sketcher.Constraint("Equal", 0, 3))
sketch4.addConstraint(Sketcher.Constraint("Equal", 10, 17))
sketch4.addConstraint(Sketcher.Constraint("DistanceY", 1, 2, -1, 1, 46.0))
sketch4.addConstraint(Sketcher.Constraint("DistanceY", 4, 2, -1, 1, 58.0))
sketch4.addConstraint(Sketcher.Constraint("DistanceY", 7, 2, -1, 1, 70.0))
sketch4.addConstraint(Sketcher.Constraint("DistanceY", 9, 2, -1, 1, 22.0))
sketch4.addConstraint(Sketcher.Constraint("DistanceY", 13, 2, -1, 1, 34.0))
sketch4.addConstraint(Sketcher.Constraint("DistanceY", 15, 2, -1, 1, 118.0))
sketch4.addConstraint(Sketcher.Constraint("DistanceY", 18, 2, -1, 1, 94.0))
sketch4.addConstraint(Sketcher.Constraint("DistanceY", 22, 2, -1, 1, 106.0))
sketch4.addConstraint(Sketcher.Constraint("DistanceY", 25, 2, -1, 1, 82.0))
sketch4.addConstraint(Sketcher.Constraint("DistanceX", 0, 2, 3, 2, 7.0))
sketch4.addConstraint(Sketcher.Constraint("DistanceX", -1, 1, 0, 2, 4.5))
sketch4.addConstraint(Sketcher.Constraint("DistanceY", 0, 2, 0, 1, 20.03073))
sketch4.addConstraint(Sketcher.Constraint("DistanceX", 9, 2, 9, 1, 5.842296))
pocket2 = doc.addObject("PartDesign::Pocket", "Pocket001")
body.addObject(pocket2)
pocket2.Profile = sketch4
pocket2.Type = "ThroughAll"
doc.recompute()

fillet2 = doc.addObject("PartDesign::Fillet", "Fillet001")
body.addObject(fillet2)
fillet2.Base = (pocket2, edges_at(pocket2, [
    (0.75, 4.5, -83.985),
    (0.75, 4.5, -104.015),
    (0.75, 4.5, -80.015),
    (0.75, 4.5, -59.985),
    (0.75, 10.342, -70),
    (0.75, 4.5, -56.015),
    (0.75, 4.5, -35.985),
    (0.75, 10.342, -46),
    (0.75, 4.5, -118),
    (0.75, 4.5, -107.985),
    (0.75, 10.342, -118),
    (0.75, 11.5, -44.015),
    (0.75, 5.658, -34),
    (0.75, 11.5, -23.985),
    (0.75, 5.658, -58),
    (0.75, 11.5, -47.985),
    (0.75, 11.5, -68.015),
    (0.75, 11.5, -116.015),
    (0.75, 5.658, -106),
    (0.75, 11.5, -95.985),
    (0.75, 11.5, -92.015),
    (0.75, 5.658, -82),
    (0.75, 11.5, -71.985),
    (0.75, 4.5, -32.015),
    (0.75, 4.5, -22),
    (0.75, 10.342, -22),
]))
fillet2.Radius = 1
doc.recompute()

fillet3 = doc.addObject("PartDesign::Fillet", "Fillet002")
body.addObject(fillet3)
fillet3.Base = (fillet2, edges_at(fillet2, [
    (0.75, 16, -4),
    (0.75, 16, -31.961),
    (0.75, 16, -36.079),
    (0.75, 16, -136),
    (0.75, 16, -108.039),
    (0.75, 16, -103.921),
]))
fillet3.Radius = 1.5

# Sketch on YZ plane
sketch5 = doc.addObject("Sketcher::SketchObject", "Sketch004")
body.addObject(sketch5)
sketch5.AttachmentSupport = (doc.YZ_Plane, [""])
sketch5.MapMode = "FlatFace"
sketch5.AttachmentOffset = App.Placement(V(0, 0, 1.5), App.Rotation())
add_polygon(sketch5, [(75.5, 0), (16, 0), (16, -140), (75.5, -140)])  # lines 0-3
sketch5.addConstraint(Sketcher.Constraint("Horizontal", 0))
sketch5.addConstraint(Sketcher.Constraint("Vertical", 1))
sketch5.addConstraint(Sketcher.Constraint("Horizontal", 2))
sketch5.addConstraint(Sketcher.Constraint("Vertical", 3))
sketch5.addConstraint(Sketcher.Constraint("PointOnObject", 0, 2, -1))
sketch5.addConstraint(Sketcher.Constraint("DistanceY", 1, 2, 1, 1, 140.0))
sketch5.addConstraint(Sketcher.Constraint("DistanceX", 0, 2, 0, 1, 59.5))
sketch5.addConstraint(Sketcher.Constraint("DistanceX", -1, 1, 0, 2, 16.0))
pocket3 = doc.addObject("PartDesign::Pocket", "Pocket002")
body.addObject(pocket3)
pocket3.Profile = sketch5
pocket3.Length = 10

doc.recompute()
